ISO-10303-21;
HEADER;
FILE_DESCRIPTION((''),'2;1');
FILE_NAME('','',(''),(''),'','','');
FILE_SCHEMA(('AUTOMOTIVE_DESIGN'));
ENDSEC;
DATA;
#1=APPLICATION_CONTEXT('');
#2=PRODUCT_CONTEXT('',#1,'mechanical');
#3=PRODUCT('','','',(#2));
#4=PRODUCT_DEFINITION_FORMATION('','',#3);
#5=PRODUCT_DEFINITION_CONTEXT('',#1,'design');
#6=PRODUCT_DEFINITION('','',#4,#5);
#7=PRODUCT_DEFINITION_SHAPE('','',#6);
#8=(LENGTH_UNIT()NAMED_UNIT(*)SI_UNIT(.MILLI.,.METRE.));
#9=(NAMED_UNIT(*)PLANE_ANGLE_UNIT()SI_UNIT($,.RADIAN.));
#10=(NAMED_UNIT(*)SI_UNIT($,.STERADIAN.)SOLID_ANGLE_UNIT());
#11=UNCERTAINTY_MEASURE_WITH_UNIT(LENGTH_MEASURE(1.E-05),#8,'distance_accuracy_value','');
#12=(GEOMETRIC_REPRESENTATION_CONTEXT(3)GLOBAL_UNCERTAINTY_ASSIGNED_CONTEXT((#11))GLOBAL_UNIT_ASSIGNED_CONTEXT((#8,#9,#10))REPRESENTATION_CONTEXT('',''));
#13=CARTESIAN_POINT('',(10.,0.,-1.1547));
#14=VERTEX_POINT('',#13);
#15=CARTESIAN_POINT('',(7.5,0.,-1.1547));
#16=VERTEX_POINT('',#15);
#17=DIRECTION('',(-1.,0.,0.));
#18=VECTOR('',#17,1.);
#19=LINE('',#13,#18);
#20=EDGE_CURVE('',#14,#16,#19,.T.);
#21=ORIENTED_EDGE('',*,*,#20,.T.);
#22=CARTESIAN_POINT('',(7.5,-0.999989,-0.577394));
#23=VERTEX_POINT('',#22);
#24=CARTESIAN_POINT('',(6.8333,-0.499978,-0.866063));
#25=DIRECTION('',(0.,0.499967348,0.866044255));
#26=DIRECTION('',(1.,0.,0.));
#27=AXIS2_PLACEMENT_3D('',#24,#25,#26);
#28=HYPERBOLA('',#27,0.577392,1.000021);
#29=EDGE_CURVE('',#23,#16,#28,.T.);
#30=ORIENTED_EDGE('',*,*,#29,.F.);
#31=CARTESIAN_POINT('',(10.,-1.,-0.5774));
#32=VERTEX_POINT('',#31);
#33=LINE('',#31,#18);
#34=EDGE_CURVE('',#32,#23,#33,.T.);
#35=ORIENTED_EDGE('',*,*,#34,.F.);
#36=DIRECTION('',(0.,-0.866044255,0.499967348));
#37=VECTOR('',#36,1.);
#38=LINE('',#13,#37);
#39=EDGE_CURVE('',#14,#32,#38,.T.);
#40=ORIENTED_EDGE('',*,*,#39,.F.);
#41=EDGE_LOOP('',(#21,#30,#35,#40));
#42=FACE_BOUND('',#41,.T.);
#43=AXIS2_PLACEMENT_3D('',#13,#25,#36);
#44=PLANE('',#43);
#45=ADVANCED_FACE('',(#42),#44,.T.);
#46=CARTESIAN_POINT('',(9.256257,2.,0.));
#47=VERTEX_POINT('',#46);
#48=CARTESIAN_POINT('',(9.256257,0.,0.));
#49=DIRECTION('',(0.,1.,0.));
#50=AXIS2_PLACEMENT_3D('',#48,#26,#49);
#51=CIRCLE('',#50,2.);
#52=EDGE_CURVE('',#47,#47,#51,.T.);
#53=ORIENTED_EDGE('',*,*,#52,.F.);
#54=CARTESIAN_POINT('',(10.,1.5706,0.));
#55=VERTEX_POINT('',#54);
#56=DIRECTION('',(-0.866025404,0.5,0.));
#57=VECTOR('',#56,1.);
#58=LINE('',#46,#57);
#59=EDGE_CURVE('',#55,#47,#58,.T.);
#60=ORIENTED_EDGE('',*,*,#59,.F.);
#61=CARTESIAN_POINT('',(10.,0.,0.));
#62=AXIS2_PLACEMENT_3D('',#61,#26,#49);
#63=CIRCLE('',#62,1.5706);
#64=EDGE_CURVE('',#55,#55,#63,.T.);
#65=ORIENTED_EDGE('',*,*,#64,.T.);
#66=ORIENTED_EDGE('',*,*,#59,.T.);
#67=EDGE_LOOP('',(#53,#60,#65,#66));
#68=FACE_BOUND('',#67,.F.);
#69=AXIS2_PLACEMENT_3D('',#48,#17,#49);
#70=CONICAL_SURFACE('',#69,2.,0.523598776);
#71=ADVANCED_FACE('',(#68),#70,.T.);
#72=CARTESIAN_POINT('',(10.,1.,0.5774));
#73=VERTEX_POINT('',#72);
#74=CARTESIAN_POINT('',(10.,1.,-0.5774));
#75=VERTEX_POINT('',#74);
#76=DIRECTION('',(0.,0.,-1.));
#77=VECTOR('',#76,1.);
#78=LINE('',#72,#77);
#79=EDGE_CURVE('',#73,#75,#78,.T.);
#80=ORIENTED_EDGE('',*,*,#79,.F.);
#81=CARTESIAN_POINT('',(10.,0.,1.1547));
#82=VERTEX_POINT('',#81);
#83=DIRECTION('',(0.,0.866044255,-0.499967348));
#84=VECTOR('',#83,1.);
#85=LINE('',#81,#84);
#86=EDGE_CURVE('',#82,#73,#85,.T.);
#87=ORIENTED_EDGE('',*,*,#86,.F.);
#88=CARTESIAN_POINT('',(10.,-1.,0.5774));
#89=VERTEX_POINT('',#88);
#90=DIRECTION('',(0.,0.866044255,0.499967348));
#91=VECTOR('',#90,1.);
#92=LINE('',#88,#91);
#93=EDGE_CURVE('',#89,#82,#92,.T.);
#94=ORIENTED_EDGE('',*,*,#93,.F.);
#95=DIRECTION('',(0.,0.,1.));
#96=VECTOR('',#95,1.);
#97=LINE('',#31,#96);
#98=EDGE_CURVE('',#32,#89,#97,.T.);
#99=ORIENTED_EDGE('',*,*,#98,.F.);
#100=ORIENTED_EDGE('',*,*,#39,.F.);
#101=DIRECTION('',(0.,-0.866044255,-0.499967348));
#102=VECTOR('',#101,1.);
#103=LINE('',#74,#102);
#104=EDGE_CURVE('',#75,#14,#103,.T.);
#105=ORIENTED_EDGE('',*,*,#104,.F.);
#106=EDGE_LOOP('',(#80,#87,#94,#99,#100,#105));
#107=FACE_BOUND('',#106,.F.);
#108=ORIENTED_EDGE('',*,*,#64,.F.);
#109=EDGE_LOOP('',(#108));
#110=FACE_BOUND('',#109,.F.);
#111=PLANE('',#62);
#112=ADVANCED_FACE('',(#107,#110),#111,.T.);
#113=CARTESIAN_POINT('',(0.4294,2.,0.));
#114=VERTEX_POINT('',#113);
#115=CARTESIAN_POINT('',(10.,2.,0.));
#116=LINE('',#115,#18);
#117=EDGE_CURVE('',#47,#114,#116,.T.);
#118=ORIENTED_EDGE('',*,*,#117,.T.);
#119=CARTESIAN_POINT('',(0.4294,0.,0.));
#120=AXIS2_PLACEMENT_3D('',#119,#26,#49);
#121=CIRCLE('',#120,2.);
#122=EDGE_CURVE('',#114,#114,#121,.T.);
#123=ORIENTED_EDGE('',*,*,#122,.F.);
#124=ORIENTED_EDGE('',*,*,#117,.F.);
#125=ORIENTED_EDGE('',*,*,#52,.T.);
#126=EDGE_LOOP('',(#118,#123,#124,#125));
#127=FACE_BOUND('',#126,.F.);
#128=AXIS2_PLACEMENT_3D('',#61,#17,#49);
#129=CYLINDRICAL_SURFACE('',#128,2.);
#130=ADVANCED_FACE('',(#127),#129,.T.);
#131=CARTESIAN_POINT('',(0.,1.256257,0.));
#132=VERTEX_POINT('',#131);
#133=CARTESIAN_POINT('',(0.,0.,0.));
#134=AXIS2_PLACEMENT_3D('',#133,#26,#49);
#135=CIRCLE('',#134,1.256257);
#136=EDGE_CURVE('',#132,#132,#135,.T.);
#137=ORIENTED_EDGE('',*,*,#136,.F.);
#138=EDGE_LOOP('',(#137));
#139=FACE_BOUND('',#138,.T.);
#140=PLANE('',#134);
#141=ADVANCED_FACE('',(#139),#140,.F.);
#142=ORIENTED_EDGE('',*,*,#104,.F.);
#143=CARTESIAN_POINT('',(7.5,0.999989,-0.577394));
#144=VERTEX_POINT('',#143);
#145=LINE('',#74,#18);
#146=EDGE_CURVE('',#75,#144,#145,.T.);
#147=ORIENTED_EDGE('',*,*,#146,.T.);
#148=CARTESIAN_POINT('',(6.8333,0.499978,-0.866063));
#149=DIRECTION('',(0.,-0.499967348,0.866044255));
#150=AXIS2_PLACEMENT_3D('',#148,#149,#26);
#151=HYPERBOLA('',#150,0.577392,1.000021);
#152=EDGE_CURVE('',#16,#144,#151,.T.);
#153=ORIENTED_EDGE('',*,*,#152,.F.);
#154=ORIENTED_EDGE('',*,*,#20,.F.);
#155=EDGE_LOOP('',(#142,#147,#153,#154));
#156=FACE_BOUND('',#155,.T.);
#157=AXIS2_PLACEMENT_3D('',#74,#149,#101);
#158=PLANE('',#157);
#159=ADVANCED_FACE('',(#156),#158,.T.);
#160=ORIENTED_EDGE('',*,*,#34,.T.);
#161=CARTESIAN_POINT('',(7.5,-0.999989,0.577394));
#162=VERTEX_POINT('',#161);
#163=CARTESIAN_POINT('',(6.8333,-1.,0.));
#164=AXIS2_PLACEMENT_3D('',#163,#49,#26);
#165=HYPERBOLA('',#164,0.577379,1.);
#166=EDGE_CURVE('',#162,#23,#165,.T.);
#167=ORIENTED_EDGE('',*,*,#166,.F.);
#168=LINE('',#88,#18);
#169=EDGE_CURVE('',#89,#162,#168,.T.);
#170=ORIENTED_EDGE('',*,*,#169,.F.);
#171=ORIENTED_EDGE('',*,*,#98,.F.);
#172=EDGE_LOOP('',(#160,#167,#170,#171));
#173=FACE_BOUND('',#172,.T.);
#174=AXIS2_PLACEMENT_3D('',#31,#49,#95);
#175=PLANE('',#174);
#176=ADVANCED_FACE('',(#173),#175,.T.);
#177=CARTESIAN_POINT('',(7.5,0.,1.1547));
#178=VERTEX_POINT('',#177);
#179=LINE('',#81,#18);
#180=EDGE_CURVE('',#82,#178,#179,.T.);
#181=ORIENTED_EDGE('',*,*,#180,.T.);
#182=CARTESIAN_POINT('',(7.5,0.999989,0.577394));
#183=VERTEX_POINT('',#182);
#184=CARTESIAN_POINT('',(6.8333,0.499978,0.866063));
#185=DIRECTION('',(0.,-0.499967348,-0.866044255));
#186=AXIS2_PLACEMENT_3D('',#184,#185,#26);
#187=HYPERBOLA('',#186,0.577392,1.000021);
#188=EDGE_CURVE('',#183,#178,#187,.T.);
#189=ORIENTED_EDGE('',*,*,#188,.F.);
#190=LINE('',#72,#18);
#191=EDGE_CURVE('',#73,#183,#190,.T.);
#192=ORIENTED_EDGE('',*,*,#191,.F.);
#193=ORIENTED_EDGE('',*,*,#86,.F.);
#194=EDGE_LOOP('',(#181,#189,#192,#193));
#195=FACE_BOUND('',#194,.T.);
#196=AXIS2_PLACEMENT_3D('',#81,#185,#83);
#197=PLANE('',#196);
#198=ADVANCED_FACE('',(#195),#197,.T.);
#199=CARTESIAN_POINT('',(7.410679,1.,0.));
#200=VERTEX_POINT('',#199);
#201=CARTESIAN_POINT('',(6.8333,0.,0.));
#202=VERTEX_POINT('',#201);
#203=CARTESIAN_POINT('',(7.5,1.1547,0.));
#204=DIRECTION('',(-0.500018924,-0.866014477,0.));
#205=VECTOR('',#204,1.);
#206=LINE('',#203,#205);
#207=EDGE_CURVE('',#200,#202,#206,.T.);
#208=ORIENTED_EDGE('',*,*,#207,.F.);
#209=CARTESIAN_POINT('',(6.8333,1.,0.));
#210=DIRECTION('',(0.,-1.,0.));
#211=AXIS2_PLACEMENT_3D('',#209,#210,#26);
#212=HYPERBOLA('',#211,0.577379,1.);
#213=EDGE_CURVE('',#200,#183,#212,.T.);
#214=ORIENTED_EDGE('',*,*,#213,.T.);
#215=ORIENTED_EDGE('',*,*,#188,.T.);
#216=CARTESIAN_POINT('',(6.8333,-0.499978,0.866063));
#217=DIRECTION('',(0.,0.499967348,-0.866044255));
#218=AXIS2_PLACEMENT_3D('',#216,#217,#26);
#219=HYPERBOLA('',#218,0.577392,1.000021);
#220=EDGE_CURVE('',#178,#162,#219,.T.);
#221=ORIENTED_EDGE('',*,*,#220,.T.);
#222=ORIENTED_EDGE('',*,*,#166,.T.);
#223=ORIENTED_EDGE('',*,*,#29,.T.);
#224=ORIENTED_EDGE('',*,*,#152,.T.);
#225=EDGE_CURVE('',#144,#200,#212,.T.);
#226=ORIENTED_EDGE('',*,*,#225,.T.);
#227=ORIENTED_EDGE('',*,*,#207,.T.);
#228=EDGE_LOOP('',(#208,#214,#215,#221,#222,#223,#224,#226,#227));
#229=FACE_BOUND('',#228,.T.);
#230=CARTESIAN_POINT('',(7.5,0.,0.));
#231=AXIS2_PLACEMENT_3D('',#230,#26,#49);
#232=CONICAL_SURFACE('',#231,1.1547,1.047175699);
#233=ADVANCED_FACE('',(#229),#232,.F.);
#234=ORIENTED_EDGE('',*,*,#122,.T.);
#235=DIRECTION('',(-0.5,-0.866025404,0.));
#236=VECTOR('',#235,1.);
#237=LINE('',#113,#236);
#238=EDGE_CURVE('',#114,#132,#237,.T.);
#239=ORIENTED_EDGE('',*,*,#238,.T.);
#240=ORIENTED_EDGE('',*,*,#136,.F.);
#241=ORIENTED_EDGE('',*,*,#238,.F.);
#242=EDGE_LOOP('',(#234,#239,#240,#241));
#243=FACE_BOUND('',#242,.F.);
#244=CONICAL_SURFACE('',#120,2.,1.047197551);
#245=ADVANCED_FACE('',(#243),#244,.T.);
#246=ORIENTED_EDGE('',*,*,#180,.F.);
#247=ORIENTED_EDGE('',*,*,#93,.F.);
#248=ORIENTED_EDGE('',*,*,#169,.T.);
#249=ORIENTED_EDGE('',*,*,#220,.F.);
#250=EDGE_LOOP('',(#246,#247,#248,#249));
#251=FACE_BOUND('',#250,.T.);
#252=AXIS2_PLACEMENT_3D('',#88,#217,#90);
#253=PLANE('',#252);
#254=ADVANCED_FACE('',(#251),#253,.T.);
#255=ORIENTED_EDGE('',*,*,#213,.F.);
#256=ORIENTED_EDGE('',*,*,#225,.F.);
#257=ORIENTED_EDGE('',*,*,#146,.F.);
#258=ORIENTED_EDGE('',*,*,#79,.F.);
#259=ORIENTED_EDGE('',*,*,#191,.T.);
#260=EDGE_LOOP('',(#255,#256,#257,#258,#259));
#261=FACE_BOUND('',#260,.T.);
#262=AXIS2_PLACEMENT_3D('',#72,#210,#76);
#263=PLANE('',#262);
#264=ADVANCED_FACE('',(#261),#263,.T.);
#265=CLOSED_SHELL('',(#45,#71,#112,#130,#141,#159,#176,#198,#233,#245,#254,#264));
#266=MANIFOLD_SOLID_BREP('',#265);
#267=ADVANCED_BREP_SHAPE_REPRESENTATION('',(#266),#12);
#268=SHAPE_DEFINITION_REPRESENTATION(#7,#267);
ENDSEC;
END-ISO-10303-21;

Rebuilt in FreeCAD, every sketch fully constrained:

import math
import FreeCAD as App
import Part
import Sketcher

V = App.Vector


def edges_at(feature, points):
    """Names of the edges that pass closest to the given points."""
    edges = feature.Shape.Edges
    near = lambda p: min(range(len(edges)), key=lambda i: edges[i].distToShape(Part.Vertex(*p))[0])
    return sorted({f"Edge{near(p) + 1}" for p in points})


def add_polygon(sketch, points):
    """Adds a closed chain of lines whose ends are joined by coincident constraints."""
    first, n = sketch.GeometryCount, len(points)
    for a, b in zip(points, points[1:] + points[:1]):
        sketch.addGeometry(Part.LineSegment(App.Vector(*a, 0), App.Vector(*b, 0)), False)
    for i in range(n):
        sketch.addConstraint(Sketcher.Constraint("Coincident", first + i, 2, first + (i + 1) % n, 1))

doc = App.newDocument("Part")
body = doc.addObject("PartDesign::Body", "Body")

# Sketch on XY plane
sketch1 = doc.addObject("Sketcher::SketchObject", "Sketch")
body.addObject(sketch1)
sketch1.AttachmentSupport = (doc.XY_Plane, [""])
sketch1.MapMode = "FlatFace"
add_polygon(sketch1, [(0, 2), (0, 0), (6.8, 0), (7.5, 1.2), (10, 1.2), (10, 2)])  # lines 0-5
sketch1.addConstraint([
    Sketcher.Constraint("Vertical", 0),
    Sketcher.Constraint("Horizontal", 1),
    Sketcher.Constraint("Horizontal", 3),
    Sketcher.Constraint("Vertical", 4),
    Sketcher.Constraint("Horizontal", 5),
    Sketcher.Constraint("Coincident", 0, 2, -1, 1),
    Sketcher.Constraint("DistanceX", 5, 2, 5, 1, 10.0),
    Sketcher.Constraint("DistanceX", 3, 1, 3, 2, 2.5),
    Sketcher.Constraint("DistanceY", 0, 2, 0, 1, 2.0),
    Sketcher.Constraint("DistanceX", 1, 1, 1, 2, 6.8333),
    Sketcher.Constraint("DistanceY", 4, 1, 4, 2, 0.8453),
])
revolution = doc.addObject("PartDesign::Revolution", "Revolution")
body.addObject(revolution)
revolution.Profile = sketch1
revolution.ReferenceAxis = (sketch1, ["H_Axis"])
revolution.Angle = 360
doc.recompute()

chamfer = doc.addObject("PartDesign::Chamfer", "Chamfer")
body.addObject(chamfer)
chamfer.Base = (revolution, edges_at(revolution, [(10, -2, 0)]))
chamfer.ChamferType = "Distance and Angle"
chamfer.Size = 0.4294
chamfer.Angle = 60

# Sketch on YZ plane
sketch2 = doc.addObject("Sketcher::SketchObject", "Sketch001")
body.addObject(sketch2)
sketch2.AttachmentSupport = (doc.YZ_Plane, [""])
sketch2.MapMode = "FlatFace"
sketch2.AttachmentOffset = App.Placement(V(0, 0, 10), App.Rotation())
sketch2.addGeometry([
    Part.LineSegment(V(1, -0.6, 0), V(0, -1.2, 0)),  # 0
    Part.ArcOfCircle(Part.Circle(V(0, 0, 0), V(0, 0, 1), 1.2), math.radians(-90), math.radians(-30)),  # 1
    Part.ArcOfCircle(Part.Circle(V(0, 0, 0), V(0, 0, 1), 1.2), math.radians(-150), math.radians(-90)),  # 2
    Part.LineSegment(V(0, -1.2, 0), V(-1, -0.6, 0)),  # 3
    Part.LineSegment(V(1, 0.6, 0), V(1, -0.6, 0)),  # 4
    Part.ArcOfCircle(Part.Circle(V(0, 0, 0), V(0, 0, 1), 1.2), math.radians(-30), math.radians(30)),  # 5
    Part.ArcOfCircle(Part.Circle(V(0, 0, 0), V(0, 0, 1), 1.2), math.radians(150), math.radians(210)),  # 6
    Part.LineSegment(V(-1, 0.6, 0), V(-1, -0.6, 0)),  # 7
    Part.LineSegment(V(0, 1.2, 0), V(1, 0.6, 0)),  # 8
    Part.ArcOfCircle(Part.Circle(V(0, 0, 0), V(0, 0, 1), 1.2), math.radians(30), math.radians(90)),  # 9
    Part.ArcOfCircle(Part.Circle(V(0, 0, 0), V(0, 0, 1), 1.2), math.radians(90), math.radians(150)),  # 10
    Part.LineSegment(V(0, 1.2, 0), V(-1, 0.6, 0)),  # 11
], False)
sketch2.addConstraint([
    Sketcher.Constraint("Coincident", 0, 1, 1, 2),
    Sketcher.Constraint("Coincident", 1, 1, 0, 2),
    Sketcher.Constraint("Coincident", 2, 1, 3, 2),
    Sketcher.Constraint("Coincident", 3, 1, 2, 2),
    Sketcher.Constraint("Coincident", 4, 1, 5, 2),
    Sketcher.Constraint("Coincident", 5, 1, 4, 2),
    Sketcher.Constraint("Coincident", 6, 1, 7, 1),
    Sketcher.Constraint("Coincident", 7, 2, 6, 2),
    Sketcher.Constraint("Coincident", 8, 1, 9, 2),
    Sketcher.Constraint("Coincident", 9, 1, 8, 2),
    Sketcher.Constraint("Coincident", 10, 1, 11, 1),
    Sketcher.Constraint("Coincident", 11, 2, 10, 2),
    Sketcher.Constraint("Vertical", 4),
    Sketcher.Constraint("Vertical", 7),
    Sketcher.Constraint("Coincident", 1, 3, -1, 1),
    Sketcher.Constraint("Coincident", 2, 3, -1, 1),
    Sketcher.Constraint("Coincident", 5, 3, -1, 1),
    Sketcher.Constraint("Coincident", 6, 3, -1, 1),
    Sketcher.Constraint("Coincident", 9, 3, -1, 1),
    Sketcher.Constraint("Coincident", 10, 3, -1, 1),
    Sketcher.Constraint("Coincident", 3, 1, 1, 1),
    Sketcher.Constraint("Coincident", 5, 1, 0, 1),
    Sketcher.Constraint("Coincident", 7, 2, 2, 1),
    Sketcher.Constraint("Coincident", 9, 1, 4, 1),
    Sketcher.Constraint("Coincident", 10, 1, 8, 1),
    Sketcher.Constraint("PointOnObject", 1, 1, -2),
    Sketcher.Constraint("PointOnObject", 8, 1, -2),
    Sketcher.Constraint("Parallel", 3, 8),
    Sketcher.Constraint("Parallel", 0, 11),
    Sketcher.Constraint("DistanceX", -1, 1, 0, 1, 1.0),
    Sketcher.Constraint("Radius", 1, 1.1547),
])
pad1 = doc.addObject("PartDesign::Pad", "Pad")
body.addObject(pad1)
pad1.Profile = sketch2
pad1.Type = "UpToFirst"
pad1.Reversed = True
doc.recompute()

chamfer2 = doc.addObject("PartDesign::Chamfer", "Chamfer001")
body.addObject(chamfer2)
chamfer2.Base = (pad1, edges_at(pad1, [(0, -2, 0)]))
chamfer2.ChamferType = "Distance and Angle"
chamfer2.Size = 0.4294
chamfer2.Angle = 60

doc.recompute()
